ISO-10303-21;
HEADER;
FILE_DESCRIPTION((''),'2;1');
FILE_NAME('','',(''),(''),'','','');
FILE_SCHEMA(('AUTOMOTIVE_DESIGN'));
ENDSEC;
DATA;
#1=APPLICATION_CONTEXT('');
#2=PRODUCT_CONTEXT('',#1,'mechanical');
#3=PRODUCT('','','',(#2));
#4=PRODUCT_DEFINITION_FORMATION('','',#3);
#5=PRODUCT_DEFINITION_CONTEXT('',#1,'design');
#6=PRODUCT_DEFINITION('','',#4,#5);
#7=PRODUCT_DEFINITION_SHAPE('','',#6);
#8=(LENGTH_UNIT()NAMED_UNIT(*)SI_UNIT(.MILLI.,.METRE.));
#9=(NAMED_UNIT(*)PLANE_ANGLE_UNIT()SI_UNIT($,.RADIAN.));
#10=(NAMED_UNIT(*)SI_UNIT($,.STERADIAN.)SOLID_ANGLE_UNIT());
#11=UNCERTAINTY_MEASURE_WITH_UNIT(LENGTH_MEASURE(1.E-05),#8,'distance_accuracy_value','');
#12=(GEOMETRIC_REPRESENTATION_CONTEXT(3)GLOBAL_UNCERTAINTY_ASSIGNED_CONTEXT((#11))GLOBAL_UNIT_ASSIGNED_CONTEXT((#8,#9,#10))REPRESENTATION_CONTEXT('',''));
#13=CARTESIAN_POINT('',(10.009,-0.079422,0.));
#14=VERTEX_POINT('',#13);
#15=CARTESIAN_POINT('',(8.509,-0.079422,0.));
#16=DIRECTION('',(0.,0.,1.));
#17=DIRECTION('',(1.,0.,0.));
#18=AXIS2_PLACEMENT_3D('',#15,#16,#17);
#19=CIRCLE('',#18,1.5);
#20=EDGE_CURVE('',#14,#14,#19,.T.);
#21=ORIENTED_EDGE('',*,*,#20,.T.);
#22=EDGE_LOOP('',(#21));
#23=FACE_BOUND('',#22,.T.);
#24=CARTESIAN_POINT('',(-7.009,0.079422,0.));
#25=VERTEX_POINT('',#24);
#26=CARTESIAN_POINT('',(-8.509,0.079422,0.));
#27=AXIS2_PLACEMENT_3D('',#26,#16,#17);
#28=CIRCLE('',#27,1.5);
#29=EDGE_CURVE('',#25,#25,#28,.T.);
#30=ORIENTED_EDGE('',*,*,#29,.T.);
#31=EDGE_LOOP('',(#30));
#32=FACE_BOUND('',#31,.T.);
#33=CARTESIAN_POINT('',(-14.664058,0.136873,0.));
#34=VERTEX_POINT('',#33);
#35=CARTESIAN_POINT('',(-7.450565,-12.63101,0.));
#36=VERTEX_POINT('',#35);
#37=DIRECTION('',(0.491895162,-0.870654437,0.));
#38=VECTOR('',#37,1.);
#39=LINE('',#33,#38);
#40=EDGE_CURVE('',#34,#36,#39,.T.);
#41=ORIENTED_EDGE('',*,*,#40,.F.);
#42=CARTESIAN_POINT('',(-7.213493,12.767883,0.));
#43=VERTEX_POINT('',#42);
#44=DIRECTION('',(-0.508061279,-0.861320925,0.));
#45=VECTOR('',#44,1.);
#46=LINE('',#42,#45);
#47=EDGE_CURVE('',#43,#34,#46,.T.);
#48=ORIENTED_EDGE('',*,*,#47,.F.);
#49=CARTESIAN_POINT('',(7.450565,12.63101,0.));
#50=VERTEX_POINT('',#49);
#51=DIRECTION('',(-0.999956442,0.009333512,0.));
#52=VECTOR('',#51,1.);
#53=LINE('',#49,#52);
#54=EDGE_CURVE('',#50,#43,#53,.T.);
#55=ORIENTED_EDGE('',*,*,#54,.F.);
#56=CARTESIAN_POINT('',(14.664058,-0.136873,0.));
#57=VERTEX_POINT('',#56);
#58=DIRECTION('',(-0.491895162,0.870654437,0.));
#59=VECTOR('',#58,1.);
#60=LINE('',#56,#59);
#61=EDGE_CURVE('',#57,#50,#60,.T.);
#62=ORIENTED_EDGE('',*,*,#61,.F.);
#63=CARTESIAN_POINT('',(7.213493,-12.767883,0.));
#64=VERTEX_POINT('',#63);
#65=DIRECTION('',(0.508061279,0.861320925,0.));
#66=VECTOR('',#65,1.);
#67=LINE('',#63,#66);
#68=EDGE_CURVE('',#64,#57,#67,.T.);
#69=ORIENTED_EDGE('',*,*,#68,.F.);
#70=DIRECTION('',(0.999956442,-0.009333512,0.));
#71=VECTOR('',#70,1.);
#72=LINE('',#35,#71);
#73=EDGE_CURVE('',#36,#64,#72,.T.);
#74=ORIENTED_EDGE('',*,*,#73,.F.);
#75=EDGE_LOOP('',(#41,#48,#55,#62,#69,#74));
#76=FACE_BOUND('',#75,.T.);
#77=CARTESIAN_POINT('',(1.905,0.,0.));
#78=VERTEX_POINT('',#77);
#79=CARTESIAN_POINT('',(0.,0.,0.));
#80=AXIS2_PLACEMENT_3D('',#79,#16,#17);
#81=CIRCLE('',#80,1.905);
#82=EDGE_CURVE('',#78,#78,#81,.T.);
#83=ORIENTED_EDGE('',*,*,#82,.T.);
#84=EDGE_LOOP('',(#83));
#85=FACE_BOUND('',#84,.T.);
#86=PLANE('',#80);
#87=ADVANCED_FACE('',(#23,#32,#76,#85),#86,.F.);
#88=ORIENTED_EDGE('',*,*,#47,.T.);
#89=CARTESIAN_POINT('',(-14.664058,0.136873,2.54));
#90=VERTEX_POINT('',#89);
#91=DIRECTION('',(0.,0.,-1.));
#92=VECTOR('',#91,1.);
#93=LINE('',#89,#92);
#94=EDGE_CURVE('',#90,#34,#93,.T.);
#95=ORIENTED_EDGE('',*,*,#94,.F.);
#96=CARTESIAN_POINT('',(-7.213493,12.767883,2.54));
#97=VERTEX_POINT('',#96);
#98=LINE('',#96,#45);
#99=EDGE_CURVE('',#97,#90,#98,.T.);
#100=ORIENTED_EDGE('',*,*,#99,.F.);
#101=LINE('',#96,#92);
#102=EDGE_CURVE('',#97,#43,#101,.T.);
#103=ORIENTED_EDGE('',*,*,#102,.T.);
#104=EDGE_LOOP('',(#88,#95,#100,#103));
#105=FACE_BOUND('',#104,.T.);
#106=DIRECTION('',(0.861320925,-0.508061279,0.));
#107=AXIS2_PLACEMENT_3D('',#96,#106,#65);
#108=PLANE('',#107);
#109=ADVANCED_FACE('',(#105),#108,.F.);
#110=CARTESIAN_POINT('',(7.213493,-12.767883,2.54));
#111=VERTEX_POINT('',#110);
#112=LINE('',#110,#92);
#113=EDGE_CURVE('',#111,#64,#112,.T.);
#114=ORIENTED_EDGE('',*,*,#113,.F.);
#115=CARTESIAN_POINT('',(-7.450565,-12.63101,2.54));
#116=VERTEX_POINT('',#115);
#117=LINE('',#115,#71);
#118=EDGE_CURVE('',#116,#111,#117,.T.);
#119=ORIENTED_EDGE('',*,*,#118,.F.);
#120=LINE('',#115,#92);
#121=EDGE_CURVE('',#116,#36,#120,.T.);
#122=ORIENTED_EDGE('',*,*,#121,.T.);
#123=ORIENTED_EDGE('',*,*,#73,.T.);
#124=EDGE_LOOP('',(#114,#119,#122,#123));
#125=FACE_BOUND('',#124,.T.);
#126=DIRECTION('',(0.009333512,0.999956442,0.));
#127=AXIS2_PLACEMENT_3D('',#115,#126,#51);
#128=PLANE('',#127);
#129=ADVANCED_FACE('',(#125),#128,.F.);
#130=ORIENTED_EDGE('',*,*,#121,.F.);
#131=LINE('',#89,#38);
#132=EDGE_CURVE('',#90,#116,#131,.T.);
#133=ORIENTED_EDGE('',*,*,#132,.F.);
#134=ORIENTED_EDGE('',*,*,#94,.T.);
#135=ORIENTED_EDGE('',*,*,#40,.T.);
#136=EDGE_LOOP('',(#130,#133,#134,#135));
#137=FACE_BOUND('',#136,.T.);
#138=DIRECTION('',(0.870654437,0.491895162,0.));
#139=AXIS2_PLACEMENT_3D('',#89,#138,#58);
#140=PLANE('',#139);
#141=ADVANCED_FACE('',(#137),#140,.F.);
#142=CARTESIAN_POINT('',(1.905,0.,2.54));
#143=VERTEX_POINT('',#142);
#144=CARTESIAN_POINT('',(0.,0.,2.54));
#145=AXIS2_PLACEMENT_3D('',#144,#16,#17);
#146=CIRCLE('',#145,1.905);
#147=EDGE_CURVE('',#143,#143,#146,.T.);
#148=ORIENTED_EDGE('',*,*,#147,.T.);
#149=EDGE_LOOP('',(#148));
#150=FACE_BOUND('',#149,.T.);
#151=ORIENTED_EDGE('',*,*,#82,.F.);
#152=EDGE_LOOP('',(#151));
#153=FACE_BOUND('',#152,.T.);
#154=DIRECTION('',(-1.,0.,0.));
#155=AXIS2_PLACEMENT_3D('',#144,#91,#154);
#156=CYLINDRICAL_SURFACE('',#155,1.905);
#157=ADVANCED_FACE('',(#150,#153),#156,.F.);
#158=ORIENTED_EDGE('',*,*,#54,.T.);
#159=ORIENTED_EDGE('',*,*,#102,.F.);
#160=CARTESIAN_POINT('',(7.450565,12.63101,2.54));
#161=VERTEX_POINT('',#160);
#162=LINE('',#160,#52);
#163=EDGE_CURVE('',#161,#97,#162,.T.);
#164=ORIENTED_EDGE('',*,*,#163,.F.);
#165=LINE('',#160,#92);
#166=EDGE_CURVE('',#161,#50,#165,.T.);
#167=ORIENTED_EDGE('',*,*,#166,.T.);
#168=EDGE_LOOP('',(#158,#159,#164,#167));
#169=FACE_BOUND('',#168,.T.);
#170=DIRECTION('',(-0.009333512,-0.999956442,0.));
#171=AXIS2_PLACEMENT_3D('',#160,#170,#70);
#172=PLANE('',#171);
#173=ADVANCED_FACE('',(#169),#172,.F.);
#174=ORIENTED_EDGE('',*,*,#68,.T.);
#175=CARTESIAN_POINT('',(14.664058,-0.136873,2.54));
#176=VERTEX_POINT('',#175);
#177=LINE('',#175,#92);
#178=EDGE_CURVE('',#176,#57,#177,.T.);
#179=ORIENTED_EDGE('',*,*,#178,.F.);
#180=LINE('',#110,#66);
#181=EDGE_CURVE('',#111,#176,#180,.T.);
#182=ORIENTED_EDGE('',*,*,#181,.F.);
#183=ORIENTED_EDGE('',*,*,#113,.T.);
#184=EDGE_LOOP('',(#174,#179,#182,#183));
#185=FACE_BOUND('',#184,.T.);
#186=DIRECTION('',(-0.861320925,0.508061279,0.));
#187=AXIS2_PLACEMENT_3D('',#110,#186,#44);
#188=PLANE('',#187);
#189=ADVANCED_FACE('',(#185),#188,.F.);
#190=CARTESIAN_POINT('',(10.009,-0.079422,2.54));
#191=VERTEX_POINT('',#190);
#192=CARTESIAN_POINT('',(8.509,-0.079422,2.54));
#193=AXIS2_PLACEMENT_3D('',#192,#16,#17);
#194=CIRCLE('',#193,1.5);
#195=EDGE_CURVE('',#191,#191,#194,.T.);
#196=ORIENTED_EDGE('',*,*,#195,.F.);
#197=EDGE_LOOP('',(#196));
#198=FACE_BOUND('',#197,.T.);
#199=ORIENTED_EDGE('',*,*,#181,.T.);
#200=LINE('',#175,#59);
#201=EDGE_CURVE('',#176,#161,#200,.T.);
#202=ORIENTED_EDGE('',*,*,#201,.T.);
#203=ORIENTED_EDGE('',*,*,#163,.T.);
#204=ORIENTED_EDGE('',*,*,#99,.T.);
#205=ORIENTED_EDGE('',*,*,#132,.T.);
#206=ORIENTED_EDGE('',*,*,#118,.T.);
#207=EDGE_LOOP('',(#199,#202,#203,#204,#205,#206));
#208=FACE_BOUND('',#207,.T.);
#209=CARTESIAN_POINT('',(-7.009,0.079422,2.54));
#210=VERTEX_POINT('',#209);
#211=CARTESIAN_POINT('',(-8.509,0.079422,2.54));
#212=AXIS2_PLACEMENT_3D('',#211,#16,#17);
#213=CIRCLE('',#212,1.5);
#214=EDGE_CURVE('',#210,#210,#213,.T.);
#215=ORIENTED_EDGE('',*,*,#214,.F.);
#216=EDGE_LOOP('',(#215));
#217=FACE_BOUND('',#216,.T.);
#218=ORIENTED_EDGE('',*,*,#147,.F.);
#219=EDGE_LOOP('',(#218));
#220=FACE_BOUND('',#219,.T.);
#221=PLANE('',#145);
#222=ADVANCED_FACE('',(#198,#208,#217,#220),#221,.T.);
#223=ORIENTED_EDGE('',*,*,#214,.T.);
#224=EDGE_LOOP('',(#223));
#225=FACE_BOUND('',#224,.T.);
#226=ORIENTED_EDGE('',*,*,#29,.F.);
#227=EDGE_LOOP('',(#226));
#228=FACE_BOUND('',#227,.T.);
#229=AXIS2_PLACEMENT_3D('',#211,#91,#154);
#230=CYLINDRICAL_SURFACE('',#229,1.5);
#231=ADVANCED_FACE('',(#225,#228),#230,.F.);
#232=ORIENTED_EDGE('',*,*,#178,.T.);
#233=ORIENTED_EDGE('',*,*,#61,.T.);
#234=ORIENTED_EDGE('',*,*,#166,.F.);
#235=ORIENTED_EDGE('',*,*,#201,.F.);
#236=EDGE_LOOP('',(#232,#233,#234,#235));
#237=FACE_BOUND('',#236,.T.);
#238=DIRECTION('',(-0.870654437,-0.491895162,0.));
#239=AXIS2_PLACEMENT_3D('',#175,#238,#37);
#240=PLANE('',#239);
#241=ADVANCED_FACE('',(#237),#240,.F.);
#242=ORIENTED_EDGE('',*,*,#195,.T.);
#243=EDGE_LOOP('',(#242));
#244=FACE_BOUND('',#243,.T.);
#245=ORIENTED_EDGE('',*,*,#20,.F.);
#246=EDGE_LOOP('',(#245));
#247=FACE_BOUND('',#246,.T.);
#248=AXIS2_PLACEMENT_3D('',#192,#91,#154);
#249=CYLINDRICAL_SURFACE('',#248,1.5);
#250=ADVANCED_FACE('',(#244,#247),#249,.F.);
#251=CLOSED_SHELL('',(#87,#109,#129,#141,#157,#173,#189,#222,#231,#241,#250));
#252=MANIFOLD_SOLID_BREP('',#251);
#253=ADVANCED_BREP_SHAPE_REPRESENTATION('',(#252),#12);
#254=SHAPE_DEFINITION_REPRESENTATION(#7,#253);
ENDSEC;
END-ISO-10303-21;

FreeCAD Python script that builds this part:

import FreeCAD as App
import Part
import Sketcher
from FreeCAD import Vector
Q = App.Units.Quantity

doc = App.newDocument("Part")
params = doc.addObject("Spreadsheet::Sheet", "Params")
for row, (alias, value) in enumerate([
    ("sketch1_diameter", "0.15 in"),
    ("pad1_length", "0.1 in"),
], start=1):
    params.set(f"A{row}", alias)
    params.set(f"B{row}", "=" + value)
    params.setAlias(f"B{row}", alias)

body = doc.addObject("PartDesign::Body", "Body")

# Sketch on XY plane
sketch1 = doc.addObject("Sketcher::SketchObject", "Sketch")
body.addObject(sketch1)
sketch1.AttachmentSupport = (doc.XY_Plane, [""])
sketch1.MapMode = "FlatFace"
sketch1.addGeometry([
    Part.LineSegment(Vector(-7.2, 12.8, 0), Vector(-14.7, 0.1, 0)),  # 0
    Part.LineSegment(Vector(-14.7, 0.1, 0), Vector(-7.5, -12.6, 0)),  # 1
    Part.LineSegment(Vector(-7.5, -12.6, 0), Vector(7.2, -12.8, 0)),  # 2
    Part.LineSegment(Vector(7.2, -12.8, 0), Vector(14.7, -0.1, 0)),  # 3
    Part.LineSegment(Vector(14.7, -0.1, 0), Vector(7.5, 12.6, 0)),  # 4
    Part.LineSegment(Vector(7.5, 12.6, 0), Vector(-7.2, 12.8, 0)),  # 5
    Part.Circle(Vector(8.5, -0.1, 0), Vector(0, 0, 1), 1.5),  # 6
    Part.Circle(Vector(-8.5, 0.1, 0), Vector(0, 0, 1), 1.5),  # 7
    Part.Circle(Vector(0, 0, 0), Vector(0, 0, 1), 1.9),  # 8
], False)
sketch1.addConstraint([
    Sketcher.Constraint("Coincident", 0, 2, 1, 1),
    Sketcher.Constraint("Coincident", 1, 2, 2, 1),
    Sketcher.Constraint("Coincident", 2, 2, 3, 1),
    Sketcher.Constraint("Coincident", 3, 2, 4, 1),
    Sketcher.Constraint("Coincident", 4, 2, 5, 1),
    Sketcher.Constraint("Coincident", 5, 2, 0, 1),
    Sketcher.Constraint("Coincident", 8, 3, -1, 1),
    Sketcher.Constraint("Equal", 6, 7),
    Sketcher.Constraint("Symmetric", 6, 3, 7, 3, -1, 1),
    Sketcher.Constraint("Symmetric", 0, 2, 3, 2, -1, 1),
    Sketcher.Constraint("Symmetric", 1, 2, 4, 2, -1, 1),
    Sketcher.Constraint("Symmetric", 2, 2, 5, 2, -1, 1),
    Sketcher.Constraint("Equal", 0, 1),
    Sketcher.Constraint("Equal", 1, 2),
    Sketcher.Constraint("Diameter", 8, Q("0.15 in")),
    Sketcher.Constraint("Diameter", 6, 3.0),
    Sketcher.Constraint("DistanceX", 7, 3, 6, 3, Q("0.67 in")),
    Sketcher.Constraint("DistanceX", 0, 2, -1, 1, 14.664058),
    Sketcher.Constraint("DistanceY", 1, 2, -1, 1, 12.63101),
    Sketcher.Constraint("DistanceY", 7, 3, 0, 2, 0.057451),
    Sketcher.Constraint("DistanceY", 2, 2, 6, 3, 12.688461),
    Sketcher.Constraint("DistanceX", 1, 2, 2, 2, 14.664058),
])
sketch1.setExpression("Constraints[14]", "Params.sketch1_diameter")
pad1 = doc.addObject("PartDesign::Pad", "Pad")
body.addObject(pad1)
pad1.Profile = sketch1
pad1.setExpression("Length", "Params.pad1_length")

doc.recompute()
